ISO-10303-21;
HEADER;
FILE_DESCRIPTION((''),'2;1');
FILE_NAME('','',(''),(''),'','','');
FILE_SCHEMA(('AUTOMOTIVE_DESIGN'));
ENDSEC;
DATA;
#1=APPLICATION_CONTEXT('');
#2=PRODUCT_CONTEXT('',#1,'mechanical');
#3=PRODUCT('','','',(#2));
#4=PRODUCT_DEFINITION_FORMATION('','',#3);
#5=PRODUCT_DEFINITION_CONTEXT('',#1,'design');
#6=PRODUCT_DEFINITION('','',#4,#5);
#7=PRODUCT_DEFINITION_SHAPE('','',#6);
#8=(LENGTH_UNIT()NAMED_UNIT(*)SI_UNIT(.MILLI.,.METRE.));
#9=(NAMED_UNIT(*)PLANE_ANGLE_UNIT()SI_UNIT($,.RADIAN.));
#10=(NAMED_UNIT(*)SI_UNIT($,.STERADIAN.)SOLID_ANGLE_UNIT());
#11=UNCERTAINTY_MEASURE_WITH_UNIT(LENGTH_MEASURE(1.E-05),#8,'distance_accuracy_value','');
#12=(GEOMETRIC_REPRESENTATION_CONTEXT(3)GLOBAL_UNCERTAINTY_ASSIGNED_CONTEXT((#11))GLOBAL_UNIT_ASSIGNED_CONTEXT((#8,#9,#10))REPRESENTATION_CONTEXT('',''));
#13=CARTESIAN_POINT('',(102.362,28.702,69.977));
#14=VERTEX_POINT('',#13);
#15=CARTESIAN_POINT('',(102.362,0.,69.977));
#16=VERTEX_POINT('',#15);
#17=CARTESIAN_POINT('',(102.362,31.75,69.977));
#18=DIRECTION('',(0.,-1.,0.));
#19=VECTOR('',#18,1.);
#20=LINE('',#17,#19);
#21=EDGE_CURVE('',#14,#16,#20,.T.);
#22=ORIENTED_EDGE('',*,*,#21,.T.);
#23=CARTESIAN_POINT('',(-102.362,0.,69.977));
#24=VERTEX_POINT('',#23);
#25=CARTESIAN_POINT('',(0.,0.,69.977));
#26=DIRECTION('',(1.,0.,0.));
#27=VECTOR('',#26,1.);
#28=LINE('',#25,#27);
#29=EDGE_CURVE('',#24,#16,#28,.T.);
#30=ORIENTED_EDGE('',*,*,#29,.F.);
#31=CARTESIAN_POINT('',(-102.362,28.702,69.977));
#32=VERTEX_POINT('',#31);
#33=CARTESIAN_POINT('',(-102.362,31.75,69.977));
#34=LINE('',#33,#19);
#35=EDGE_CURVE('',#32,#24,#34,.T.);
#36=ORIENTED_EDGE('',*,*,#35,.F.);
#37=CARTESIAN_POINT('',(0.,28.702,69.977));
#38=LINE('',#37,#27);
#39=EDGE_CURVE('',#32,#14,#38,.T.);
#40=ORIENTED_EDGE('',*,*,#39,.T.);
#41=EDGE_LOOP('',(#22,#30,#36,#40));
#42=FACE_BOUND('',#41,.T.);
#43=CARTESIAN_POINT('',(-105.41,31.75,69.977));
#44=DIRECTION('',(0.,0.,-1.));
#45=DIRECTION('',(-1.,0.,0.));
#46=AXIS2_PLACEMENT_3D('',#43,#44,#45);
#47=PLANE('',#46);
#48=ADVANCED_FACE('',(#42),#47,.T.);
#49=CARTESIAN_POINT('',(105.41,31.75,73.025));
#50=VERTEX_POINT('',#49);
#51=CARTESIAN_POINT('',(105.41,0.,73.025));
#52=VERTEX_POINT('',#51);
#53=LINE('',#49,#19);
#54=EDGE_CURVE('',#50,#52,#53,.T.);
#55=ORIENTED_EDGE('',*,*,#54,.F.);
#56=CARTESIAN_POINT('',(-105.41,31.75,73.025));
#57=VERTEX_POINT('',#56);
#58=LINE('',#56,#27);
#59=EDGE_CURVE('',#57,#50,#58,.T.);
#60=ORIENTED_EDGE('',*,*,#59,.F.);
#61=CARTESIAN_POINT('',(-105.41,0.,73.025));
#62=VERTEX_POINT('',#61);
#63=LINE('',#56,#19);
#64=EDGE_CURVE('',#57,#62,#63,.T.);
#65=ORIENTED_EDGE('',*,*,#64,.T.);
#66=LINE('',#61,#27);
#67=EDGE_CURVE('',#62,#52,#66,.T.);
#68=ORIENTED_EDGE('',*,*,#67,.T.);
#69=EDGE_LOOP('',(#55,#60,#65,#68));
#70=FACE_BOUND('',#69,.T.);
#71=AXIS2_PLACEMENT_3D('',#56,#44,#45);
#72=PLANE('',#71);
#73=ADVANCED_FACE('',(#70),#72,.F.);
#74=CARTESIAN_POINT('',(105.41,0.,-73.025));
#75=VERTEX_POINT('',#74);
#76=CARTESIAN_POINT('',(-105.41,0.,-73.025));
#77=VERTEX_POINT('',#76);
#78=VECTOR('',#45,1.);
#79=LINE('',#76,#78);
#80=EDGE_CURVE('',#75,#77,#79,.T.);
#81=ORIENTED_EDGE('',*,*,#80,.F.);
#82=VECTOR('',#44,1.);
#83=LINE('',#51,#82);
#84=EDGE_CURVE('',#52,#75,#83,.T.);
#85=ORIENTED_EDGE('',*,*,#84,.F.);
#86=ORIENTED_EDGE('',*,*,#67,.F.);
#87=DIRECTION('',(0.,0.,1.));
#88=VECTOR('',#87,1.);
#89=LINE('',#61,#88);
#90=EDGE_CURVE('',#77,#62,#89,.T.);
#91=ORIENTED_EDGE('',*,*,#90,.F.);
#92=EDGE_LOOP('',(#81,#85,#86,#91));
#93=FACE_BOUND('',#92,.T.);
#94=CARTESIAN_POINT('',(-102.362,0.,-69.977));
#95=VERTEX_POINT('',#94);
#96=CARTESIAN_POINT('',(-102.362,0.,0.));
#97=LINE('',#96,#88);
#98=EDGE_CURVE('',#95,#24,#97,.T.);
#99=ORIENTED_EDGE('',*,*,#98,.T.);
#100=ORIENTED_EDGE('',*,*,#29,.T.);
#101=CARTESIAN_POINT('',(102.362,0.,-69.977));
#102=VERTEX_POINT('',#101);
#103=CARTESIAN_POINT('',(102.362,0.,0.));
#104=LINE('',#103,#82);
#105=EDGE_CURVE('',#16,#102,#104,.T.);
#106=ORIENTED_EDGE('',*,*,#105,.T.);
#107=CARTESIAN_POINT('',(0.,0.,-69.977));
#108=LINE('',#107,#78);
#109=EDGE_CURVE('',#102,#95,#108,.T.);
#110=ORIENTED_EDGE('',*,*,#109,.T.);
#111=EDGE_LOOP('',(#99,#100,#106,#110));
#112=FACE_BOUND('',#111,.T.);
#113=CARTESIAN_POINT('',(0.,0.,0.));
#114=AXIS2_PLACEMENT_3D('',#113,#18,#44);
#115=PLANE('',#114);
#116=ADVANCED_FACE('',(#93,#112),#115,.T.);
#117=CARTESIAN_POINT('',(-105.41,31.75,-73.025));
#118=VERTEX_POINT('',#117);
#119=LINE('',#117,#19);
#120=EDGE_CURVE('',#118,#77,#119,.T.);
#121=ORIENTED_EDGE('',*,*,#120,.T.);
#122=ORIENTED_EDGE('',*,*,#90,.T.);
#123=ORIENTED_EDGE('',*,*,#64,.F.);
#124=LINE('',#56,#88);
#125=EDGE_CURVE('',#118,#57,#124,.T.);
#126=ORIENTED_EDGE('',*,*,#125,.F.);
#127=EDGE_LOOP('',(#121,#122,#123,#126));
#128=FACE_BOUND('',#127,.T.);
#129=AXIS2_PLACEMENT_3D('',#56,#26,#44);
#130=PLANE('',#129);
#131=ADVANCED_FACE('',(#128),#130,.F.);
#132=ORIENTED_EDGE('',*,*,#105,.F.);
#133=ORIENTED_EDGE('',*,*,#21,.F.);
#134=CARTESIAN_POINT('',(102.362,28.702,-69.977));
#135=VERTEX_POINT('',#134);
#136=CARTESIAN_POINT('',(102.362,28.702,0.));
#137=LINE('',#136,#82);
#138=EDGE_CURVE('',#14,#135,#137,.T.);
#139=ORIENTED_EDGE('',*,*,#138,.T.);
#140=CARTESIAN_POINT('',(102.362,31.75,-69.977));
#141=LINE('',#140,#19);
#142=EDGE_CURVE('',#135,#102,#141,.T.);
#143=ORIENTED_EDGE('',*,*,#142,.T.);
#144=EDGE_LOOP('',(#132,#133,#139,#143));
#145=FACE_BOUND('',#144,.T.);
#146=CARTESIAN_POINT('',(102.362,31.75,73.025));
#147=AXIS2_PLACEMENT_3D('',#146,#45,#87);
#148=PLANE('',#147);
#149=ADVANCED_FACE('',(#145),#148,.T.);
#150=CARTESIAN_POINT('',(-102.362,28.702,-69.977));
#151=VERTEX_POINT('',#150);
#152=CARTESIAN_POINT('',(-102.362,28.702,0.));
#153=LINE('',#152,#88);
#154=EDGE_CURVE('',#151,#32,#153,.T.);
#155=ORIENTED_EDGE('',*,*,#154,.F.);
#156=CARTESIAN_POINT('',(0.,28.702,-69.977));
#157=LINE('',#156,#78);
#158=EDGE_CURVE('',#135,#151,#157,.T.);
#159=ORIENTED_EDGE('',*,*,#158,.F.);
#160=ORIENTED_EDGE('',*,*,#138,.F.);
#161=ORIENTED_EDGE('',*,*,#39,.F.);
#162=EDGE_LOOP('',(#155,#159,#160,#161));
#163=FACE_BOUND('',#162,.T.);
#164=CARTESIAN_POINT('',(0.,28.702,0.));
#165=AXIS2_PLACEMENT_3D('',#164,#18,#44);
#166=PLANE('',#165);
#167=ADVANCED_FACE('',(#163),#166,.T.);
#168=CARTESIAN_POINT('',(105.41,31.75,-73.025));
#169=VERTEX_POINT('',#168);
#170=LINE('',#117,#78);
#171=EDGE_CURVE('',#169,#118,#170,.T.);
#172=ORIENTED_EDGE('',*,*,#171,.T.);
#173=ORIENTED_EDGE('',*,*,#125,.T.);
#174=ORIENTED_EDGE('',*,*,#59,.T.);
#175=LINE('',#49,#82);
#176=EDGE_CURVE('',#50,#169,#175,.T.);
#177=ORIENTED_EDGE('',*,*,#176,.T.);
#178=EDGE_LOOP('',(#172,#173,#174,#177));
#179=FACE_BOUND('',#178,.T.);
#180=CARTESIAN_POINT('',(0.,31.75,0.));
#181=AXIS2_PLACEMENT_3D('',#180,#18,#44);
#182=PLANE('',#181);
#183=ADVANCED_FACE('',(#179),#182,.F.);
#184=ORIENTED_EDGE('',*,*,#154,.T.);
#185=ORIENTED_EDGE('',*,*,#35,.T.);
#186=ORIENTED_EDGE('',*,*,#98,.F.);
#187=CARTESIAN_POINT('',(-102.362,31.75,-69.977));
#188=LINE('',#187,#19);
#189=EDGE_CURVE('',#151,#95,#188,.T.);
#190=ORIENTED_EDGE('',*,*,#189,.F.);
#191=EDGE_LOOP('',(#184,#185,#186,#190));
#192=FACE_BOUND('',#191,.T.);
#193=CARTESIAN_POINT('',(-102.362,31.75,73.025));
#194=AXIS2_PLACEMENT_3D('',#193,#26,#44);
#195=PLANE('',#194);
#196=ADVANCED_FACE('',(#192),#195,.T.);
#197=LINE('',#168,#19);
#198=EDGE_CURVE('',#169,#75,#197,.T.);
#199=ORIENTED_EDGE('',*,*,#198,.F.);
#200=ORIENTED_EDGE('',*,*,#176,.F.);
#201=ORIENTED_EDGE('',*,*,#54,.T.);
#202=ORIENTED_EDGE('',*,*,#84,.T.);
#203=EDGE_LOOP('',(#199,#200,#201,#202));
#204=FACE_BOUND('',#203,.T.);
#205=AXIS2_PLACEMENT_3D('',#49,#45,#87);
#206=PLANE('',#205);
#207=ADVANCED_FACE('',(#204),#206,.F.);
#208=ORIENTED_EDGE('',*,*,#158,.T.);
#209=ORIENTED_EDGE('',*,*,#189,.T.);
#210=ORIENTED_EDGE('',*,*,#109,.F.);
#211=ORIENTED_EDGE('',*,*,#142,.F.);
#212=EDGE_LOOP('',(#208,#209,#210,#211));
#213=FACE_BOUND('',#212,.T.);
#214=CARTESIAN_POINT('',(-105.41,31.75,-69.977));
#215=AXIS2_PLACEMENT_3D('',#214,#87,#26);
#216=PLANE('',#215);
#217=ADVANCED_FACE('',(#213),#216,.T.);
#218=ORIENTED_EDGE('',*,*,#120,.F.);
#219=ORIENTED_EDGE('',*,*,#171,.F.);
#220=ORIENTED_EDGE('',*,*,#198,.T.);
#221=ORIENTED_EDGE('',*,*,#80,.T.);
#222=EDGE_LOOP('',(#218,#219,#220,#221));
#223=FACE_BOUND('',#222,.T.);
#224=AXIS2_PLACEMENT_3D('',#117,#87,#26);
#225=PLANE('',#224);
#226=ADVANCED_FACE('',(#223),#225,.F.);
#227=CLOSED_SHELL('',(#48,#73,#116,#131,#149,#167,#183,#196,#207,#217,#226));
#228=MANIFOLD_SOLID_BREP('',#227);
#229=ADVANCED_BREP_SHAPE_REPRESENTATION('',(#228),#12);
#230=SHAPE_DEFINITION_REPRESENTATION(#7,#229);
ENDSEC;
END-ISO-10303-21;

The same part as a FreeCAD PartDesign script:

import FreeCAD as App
import Part
import Sketcher
Q = App.Units.Quantity


def faces_at(feature, points):
    """Names of the faces that lie closest to the given points."""
    faces = feature.Shape.Faces
    near = lambda p: min(range(len(faces)), key=lambda i: faces[i].distToShape(Part.Vertex(*p))[0])
    return sorted({f"Face{near(p) + 1}" for p in points})

doc = App.newDocument("Part")
body = doc.addObject("PartDesign::Body", "Body")

sketch1 = body.newObject("Sketcher::SketchObject", "Sketch")
sketch1.AttachmentSupport = (doc.getObject("XZ_Plane"), [""])
sketch1.MapMode = "FlatFace"
sketch1.addGeometry(Part.LineSegment(App.Vector(-105.41, -73.025, 0), App.Vector(-105.41, 73.025, 0)), False)
sketch1.addGeometry(Part.LineSegment(App.Vector(-105.41, 73.025, 0), App.Vector(105.41, 73.025, 0)), False)
sketch1.addGeometry(Part.LineSegment(App.Vector(105.41, 73.025, 0), App.Vector(105.41, -73.025, 0)), False)
sketch1.addGeometry(Part.LineSegment(App.Vector(105.41, -73.025, 0), App.Vector(-105.41, -73.025, 0)), False)
sketch1.addConstraint(Sketcher.Constraint("Coincident", 0, 2, 1, 1))
sketch1.addConstraint(Sketcher.Constraint("Coincident", 1, 2, 2, 1))
sketch1.addConstraint(Sketcher.Constraint("Coincident", 2, 2, 3, 1))
sketch1.addConstraint(Sketcher.Constraint("Coincident", 3, 2, 0, 1))
sketch1.addConstraint(Sketcher.Constraint("Vertical", 0))
sketch1.addConstraint(Sketcher.Constraint("Horizontal", 1))
sketch1.addConstraint(Sketcher.Constraint("Vertical", 2))
sketch1.addConstraint(Sketcher.Constraint("Horizontal", 3))
sketch1.addConstraint(Sketcher.Constraint("Symmetric", 0, 2, 2, 2, -1, 1))
sketch1.addConstraint(Sketcher.Constraint("DistanceX", 1, 1, 1, 2, Q("8.3 in")))
sketch1.addConstraint(Sketcher.Constraint("DistanceY", 0, 1, 0, 2, Q("5.75 in")))
pad1 = body.newObject("PartDesign::Pad", "Pad")
pad1.Profile = sketch1
pad1.Length = Q("1.25 in")
pad1.Reversed = True
doc.recompute()

thickness = body.newObject("PartDesign::Thickness", "Thickness")
thickness.Base = (pad1, faces_at(pad1, [(0, 0, 0)]))
thickness.Value = Q("0.12 in")
thickness.Reversed = True
thickness.Join = "Intersection"

doc.recompute()
